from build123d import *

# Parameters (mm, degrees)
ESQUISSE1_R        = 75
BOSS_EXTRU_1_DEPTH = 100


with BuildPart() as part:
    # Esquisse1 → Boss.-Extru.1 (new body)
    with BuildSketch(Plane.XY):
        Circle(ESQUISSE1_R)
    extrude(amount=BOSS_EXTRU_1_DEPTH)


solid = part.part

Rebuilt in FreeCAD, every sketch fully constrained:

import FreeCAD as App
import Part
import Sketcher

doc = App.newDocument("Part")
body = doc.addObject("PartDesign::Body", "Body")

sketch1 = body.newObject("Sketcher::SketchObject", "Sketch")
sketch1.AttachmentSupport = (doc.getObject("XY_Plane"), [""])
sketch1.MapMode = "FlatFace"
sketch1.addGeometry(Part.Circle(App.Vector(0, 0, 0), App.Vector(0, 0, 1), 75), False)
sketch1.addConstraint([
    Sketcher.Constraint("Coincident", 0, 3, -1, 1),
    Sketcher.Constraint("Diameter", 0, 150.0),
])
pad1 = body.newObject("PartDesign::Pad", "Pad")
pad1.Profile = sketch1
pad1.Length = 100

doc.recompute()
